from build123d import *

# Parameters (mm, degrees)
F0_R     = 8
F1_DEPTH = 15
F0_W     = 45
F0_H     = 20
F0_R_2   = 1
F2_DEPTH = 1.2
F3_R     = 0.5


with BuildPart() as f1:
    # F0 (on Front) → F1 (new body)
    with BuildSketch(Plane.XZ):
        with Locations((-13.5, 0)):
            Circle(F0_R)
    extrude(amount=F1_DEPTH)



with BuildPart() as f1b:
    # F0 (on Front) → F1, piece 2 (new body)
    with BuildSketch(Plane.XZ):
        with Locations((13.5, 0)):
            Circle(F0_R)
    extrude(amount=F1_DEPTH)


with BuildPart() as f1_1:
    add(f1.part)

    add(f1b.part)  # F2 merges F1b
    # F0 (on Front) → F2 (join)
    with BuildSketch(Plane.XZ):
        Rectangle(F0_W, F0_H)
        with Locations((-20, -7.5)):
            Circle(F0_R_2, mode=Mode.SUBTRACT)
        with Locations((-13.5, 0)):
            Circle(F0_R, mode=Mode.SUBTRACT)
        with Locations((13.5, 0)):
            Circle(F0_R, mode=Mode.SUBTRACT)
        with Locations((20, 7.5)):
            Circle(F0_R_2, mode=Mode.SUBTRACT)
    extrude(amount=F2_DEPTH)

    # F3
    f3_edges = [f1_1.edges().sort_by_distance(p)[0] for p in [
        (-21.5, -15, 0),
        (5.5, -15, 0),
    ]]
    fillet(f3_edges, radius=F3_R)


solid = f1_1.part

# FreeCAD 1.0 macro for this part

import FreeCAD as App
import Part
import Sketcher

V = App.Vector


def edges_at(feature, points):
    """Names of the edges that pass closest to the given points."""
    edges = feature.Shape.Edges
    near = lambda p: min(range(len(edges)), key=lambda i: edges[i].distToShape(Part.Vertex(*p))[0])
    return sorted({f"Edge{near(p) + 1}" for p in points})


def add_polygon(sketch, points):
    """Adds a closed chain of lines whose ends are joined by coincident constraints."""
    first, n = sketch.GeometryCount, len(points)
    for a, b in zip(points, points[1:] + points[:1]):
        sketch.addGeometry(Part.LineSegment(App.Vector(*a, 0), App.Vector(*b, 0)), False)
    for i in range(n):
        sketch.addConstraint(Sketcher.Constraint("Coincident", first + i, 2, first + (i + 1) % n, 1))

doc = App.newDocument("Part")
body = doc.addObject("PartDesign::Body", "Body")

sketch1 = body.newObject("Sketcher::SketchObject", "Sketch")
sketch1.AttachmentSupport = (doc.getObject("XZ_Plane"), [""])
sketch1.MapMode = "FlatFace"
sketch1.addGeometry(Part.Circle(V(-13.5, 0, 0), V(0, 0, 1), 8), False)
sketch1.addConstraint(Sketcher.Constraint("PointOnObject", 0, 3, -1))
sketch1.addConstraint(Sketcher.Constraint("Diameter", 0, 16.0))
sketch1.addConstraint(Sketcher.Constraint("DistanceX", 0, 3, -1, 1, 13.5))
pad1 = body.newObject("PartDesign::Pad", "Pad")
pad1.Profile = sketch1
pad1.Length = 15
body2 = doc.addObject("PartDesign::Body", "Body001")

sketch2 = body2.newObject("Sketcher::SketchObject", "Sketch001")
sketch2.AttachmentSupport = (doc.getObject("XZ_Plane001"), [""])
sketch2.MapMode = "FlatFace"
sketch2.addGeometry(Part.Circle(V(13.5, 0, 0), V(0, 0, 1), 8), False)
sketch2.addConstraint(Sketcher.Constraint("PointOnObject", 0, 3, -1))
sketch2.addConstraint(Sketcher.Constraint("Diameter", 0, 16.0))
sketch2.addConstraint(Sketcher.Constraint("DistanceX", -1, 1, 0, 3, 13.5))
pad2 = body2.newObject("PartDesign::Pad", "Pad001")
pad2.Profile = sketch2
pad2.Length = 15
body.AllowCompound = True
doc.recompute()

boolean = body.newObject("PartDesign::Boolean", "Boolean")
boolean.Type = "Fuse"
boolean.addObjects([body2])

sketch3 = body.newObject("Sketcher::SketchObject", "Sketch002")
sketch3.AttachmentSupport = (doc.getObject("XZ_Plane"), [""])
sketch3.MapMode = "FlatFace"
add_polygon(sketch3, [(-22.5, 10), (-22.5, -10), (22.5, -10), (22.5, 10)])
sketch3.addGeometry(Part.Circle(V(-20, -7.5, 0), V(0, 0, 1), 1), False)
sketch3.addGeometry(Part.Circle(V(-13.5, 0, 0), V(0, 0, 1), 8), False)
sketch3.addGeometry(Part.Circle(V(13.5, 0, 0), V(0, 0, 1), 8), False)
sketch3.addGeometry(Part.Circle(V(20, 7.5, 0), V(0, 0, 1), 1), False)
sketch3.addConstraint(Sketcher.Constraint("Vertical", 0))
sketch3.addConstraint(Sketcher.Constraint("Horizontal", 1))
sketch3.addConstraint(Sketcher.Constraint("Vertical", 2))
sketch3.addConstraint(Sketcher.Constraint("Horizontal", 3))
sketch3.addConstraint(Sketcher.Constraint("Equal", 5, 6))
sketch3.addConstraint(Sketcher.Constraint("Equal", 4, 7))
sketch3.addConstraint(Sketcher.Constraint("Symmetric", 5, 3, 6, 3, -1, 1))
sketch3.addConstraint(Sketcher.Constraint("Symmetric", 4, 3, 7, 3, -1, 1))
sketch3.addConstraint(Sketcher.Constraint("Symmetric", 0, 2, 2, 2, -1, 1))
sketch3.addConstraint(Sketcher.Constraint("PointOnObject", 5, 3, -1))
sketch3.addConstraint(Sketcher.Constraint("Diameter", 4, 2.0))
sketch3.addConstraint(Sketcher.Constraint("Diameter", 5, 16.0))
sketch3.addConstraint(Sketcher.Constraint("DistanceX", 1, 1, 1, 2, 45.0))
sketch3.addConstraint(Sketcher.Constraint("DistanceY", 0, 2, 0, 1, 20.0))
sketch3.addConstraint(Sketcher.Constraint("DistanceX", 4, 3, -1, 1, 20.0))
sketch3.addConstraint(Sketcher.Constraint("DistanceX", 5, 3, 6, 3, 27.0))
sketch3.addConstraint(Sketcher.Constraint("DistanceY", 4, 3, 7, 3, 15.0))
pad3 = body.newObject("PartDesign::Pad", "Pad002")
pad3.Profile = sketch3
pad3.Length = 1.2
doc.recompute()

fillet = body.newObject("PartDesign::Fillet", "Fillet")
fillet.Base = (pad3, edges_at(pad3, [(-21.5, -15, 0), (5.5, -15, 0)]))
fillet.Radius = 0.5

doc.recompute()
